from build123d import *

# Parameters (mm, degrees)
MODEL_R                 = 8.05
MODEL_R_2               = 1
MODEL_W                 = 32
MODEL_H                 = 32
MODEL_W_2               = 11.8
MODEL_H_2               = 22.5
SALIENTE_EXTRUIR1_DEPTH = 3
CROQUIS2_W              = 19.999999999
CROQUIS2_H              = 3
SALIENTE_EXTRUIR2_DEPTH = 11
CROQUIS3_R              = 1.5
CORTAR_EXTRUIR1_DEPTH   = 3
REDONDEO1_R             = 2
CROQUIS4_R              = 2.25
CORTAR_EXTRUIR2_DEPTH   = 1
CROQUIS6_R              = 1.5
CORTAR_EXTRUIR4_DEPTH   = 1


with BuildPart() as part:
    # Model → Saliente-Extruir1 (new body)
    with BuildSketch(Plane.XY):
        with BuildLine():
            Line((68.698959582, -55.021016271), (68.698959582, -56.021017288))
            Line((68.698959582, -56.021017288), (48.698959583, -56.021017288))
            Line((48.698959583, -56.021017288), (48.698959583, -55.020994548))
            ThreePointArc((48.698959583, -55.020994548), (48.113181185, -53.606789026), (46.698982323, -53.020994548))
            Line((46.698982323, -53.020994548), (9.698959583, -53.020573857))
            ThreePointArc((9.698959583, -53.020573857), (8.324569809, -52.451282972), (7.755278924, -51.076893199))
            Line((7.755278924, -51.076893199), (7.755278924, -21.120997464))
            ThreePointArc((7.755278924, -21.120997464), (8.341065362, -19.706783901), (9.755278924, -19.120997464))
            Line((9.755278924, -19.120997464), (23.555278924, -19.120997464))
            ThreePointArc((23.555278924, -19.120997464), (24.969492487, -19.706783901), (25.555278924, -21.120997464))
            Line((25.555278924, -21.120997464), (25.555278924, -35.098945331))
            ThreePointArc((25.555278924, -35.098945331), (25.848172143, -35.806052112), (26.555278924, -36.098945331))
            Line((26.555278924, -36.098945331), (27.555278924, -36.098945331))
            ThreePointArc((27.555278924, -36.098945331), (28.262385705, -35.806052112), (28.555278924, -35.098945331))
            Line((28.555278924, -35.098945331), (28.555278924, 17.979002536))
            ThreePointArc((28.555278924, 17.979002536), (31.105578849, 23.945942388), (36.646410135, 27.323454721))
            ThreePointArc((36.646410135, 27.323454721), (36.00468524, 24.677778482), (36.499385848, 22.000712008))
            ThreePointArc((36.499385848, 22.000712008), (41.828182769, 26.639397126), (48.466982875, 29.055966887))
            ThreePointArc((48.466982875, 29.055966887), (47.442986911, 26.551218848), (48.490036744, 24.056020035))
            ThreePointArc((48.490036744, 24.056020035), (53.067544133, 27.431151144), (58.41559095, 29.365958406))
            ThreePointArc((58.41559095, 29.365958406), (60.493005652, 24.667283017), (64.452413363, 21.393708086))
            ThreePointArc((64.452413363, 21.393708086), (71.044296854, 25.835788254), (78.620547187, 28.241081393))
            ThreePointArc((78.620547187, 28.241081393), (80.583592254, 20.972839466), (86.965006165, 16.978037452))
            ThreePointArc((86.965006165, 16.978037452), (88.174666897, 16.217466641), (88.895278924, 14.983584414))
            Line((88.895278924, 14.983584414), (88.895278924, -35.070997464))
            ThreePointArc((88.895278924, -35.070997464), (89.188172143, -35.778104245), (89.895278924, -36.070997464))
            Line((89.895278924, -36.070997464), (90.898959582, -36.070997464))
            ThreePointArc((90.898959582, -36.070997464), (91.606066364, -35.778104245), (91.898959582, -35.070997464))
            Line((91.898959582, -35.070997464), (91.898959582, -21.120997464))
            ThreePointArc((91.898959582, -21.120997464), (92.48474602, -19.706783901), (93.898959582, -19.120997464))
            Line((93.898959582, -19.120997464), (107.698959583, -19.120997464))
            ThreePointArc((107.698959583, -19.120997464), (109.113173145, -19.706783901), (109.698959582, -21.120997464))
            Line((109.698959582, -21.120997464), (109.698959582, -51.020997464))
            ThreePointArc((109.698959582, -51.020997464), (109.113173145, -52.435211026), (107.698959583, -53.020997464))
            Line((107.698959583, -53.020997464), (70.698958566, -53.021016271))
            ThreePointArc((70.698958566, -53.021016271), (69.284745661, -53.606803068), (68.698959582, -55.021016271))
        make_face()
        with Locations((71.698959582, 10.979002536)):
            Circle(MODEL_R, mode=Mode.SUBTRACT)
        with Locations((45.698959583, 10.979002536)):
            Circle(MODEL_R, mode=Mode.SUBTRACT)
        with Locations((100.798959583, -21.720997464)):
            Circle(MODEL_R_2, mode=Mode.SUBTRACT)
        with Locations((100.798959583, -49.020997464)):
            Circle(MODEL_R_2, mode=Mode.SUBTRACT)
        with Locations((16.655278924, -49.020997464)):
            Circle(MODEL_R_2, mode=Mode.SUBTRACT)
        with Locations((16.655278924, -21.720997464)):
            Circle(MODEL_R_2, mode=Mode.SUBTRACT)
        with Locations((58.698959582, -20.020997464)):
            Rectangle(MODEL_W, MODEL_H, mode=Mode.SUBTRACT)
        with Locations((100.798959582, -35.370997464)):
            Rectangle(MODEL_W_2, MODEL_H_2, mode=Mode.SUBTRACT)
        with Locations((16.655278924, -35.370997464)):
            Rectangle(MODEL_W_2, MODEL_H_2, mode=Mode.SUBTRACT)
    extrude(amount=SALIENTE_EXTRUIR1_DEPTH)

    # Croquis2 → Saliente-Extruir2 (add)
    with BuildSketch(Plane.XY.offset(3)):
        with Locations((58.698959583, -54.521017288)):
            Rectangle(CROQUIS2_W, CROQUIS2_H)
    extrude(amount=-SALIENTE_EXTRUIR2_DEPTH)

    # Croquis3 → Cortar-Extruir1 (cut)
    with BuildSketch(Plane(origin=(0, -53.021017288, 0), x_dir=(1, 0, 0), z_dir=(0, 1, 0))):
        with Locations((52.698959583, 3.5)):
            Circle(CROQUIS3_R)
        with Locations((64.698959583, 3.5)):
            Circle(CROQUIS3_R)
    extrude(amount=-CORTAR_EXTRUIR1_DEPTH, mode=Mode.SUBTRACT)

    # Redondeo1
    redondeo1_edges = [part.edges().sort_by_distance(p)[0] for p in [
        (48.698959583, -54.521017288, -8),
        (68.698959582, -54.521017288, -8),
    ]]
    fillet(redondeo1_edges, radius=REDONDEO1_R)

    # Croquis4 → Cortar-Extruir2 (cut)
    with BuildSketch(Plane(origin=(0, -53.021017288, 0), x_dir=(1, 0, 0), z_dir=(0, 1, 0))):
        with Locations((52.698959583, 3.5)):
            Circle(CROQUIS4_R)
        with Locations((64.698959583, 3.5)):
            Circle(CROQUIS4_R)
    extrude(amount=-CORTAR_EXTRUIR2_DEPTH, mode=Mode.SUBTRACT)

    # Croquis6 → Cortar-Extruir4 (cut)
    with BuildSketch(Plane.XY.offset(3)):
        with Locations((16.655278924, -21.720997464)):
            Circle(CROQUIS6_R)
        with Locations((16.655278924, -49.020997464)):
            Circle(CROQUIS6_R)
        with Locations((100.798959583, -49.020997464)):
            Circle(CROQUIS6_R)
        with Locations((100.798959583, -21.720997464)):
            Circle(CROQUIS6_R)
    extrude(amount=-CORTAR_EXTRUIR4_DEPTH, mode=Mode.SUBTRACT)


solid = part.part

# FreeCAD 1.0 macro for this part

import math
import FreeCAD as App
import Part
import Sketcher

V = App.Vector


def edges_at(feature, points):
    """Names of the edges that pass closest to the given points."""
    edges = feature.Shape.Edges
    near = lambda p: min(range(len(edges)), key=lambda i: edges[i].distToShape(Part.Vertex(*p))[0])
    return sorted({f"Edge{near(p) + 1}" for p in points})

doc = App.newDocument("Part")
body = doc.addObject("PartDesign::Body", "Body")

# Sketch on XY plane
sketch1 = doc.addObject("Sketcher::SketchObject", "Sketch")
body.addObject(sketch1)
sketch1.AttachmentSupport = (doc.XY_Plane, [""])
sketch1.MapMode = "FlatFace"
sketch1.addGeometry(Part.LineSegment(V(68.69896, -56.021017, 0), V(68.69896, -55.021016, 0)), False)
sketch1.addGeometry(Part.ArcOfCircle(Part.Circle(V(70.69896, -55.021016, 0), V(0, 0, 1), 2), math.radians(90.000029), math.radians(180)), False)
sketch1.addGeometry(Part.LineSegment(V(70.698959, -53.021016, 0), V(107.69896, -53.020997, 0)), False)
sketch1.addGeometry(Part.ArcOfCircle(Part.Circle(V(107.69896, -51.020997, 0), V(0, 0, 1), 2), math.radians(-90), math.radians(0)), False)
sketch1.addGeometry(Part.LineSegment(V(109.69896, -51.020997, 0), V(109.69896, -21.120997, 0)), False)
sketch1.addGeometry(Part.ArcOfCircle(Part.Circle(V(107.69896, -21.120997, 0), V(0, 0, 1), 2), math.radians(0), math.radians(90)), False)
sketch1.addGeometry(Part.LineSegment(V(107.69896, -19.120997, 0), V(93.89896, -19.120997, 0)), False)
sketch1.addGeometry(Part.ArcOfCircle(Part.Circle(V(93.89896, -21.120997, 0), V(0, 0, 1), 2), math.radians(90), math.radians(180)), False)
sketch1.addGeometry(Part.LineSegment(V(91.89896, -21.120997, 0), V(91.89896, -35.070997, 0)), False)
sketch1.addGeometry(Part.ArcOfCircle(Part.Circle(V(90.89896, -35.070997, 0), V(0, 0, 1), 1), math.radians(-90), math.radians(0)), False)
sketch1.addGeometry(Part.LineSegment(V(90.89896, -36.070997, 0), V(89.895279, -36.070997, 0)), False)
sketch1.addGeometry(Part.ArcOfCircle(Part.Circle(V(89.895279, -35.070997, 0), V(0, 0, 1), 1), math.radians(-180), math.radians(-90)), False)
sketch1.addGeometry(Part.LineSegment(V(88.895279, -35.070997, 0), V(88.895279, 14.983584, 0)), False)
sketch1.addGeometry(Part.ArcOfCircle(Part.Circle(V(86.018945, 14.131115, 0), V(0, 0, 1), 3), math.radians(16.508438), math.radians(71.617836)), False)
sketch1.addGeometry(Part.ArcOfCircle(Part.Circle(V(88.865955, 27.108999, 0), V(0, 0, 1), 10.307764), math.radians(173.694595), math.radians(259.372729)), False)
sketch1.addGeometry(Part.ArcOfCircle(Part.Circle(V(83.198175, 0.687784, 0), V(0, 0, 1), 27.930966), math.radians(99.432804), math.radians(132.15559)), False)
sketch1.addGeometry(Part.ArcOfCircle(Part.Circle(V(69.406252, 31.416656, 0), V(0, 0, 1), 11.18034), math.radians(-169.430975), math.radians(-116.300872)), False)
sketch1.addGeometry(Part.ArcOfCircle(Part.Circle(V(62.408136, 9.971335, 0), V(0, 0, 1), 19.801309), math.radians(101.632314), math.radians(134.659156)), False)
sketch1.addGeometry(Part.ArcOfCircle(Part.Circle(V(50.978483, 26.56752, 0), V(0, 0, 1), 3.535534), math.radians(135.264179), math.radians(225.264179)), False)
sketch1.addGeometry(Part.ArcOfCircle(Part.Circle(V(51.655016, 9.970463, 0), V(0, 0, 1), 19.349935), math.radians(99.483105), math.radians(141.558127)), False)
sketch1.addGeometry(Part.ArcOfCircle(Part.Circle(V(42.521402, 24.497774, 0), V(0, 0, 1), 6.519202), math.radians(154.313956), math.radians(202.521611)), False)
sketch1.addGeometry(Part.ArcOfCircle(Part.Circle(V(39.152816, 16.978037, 0), V(0, 0, 1), 10.644704), math.radians(103.618763), math.radians(174.604272)), False)
sketch1.addGeometry(Part.LineSegment(V(28.555279, 17.979003, 0), V(28.555279, -35.098945, 0)), False)
sketch1.addGeometry(Part.ArcOfCircle(Part.Circle(V(27.555279, -35.098945, 0), V(0, 0, 1), 1), math.radians(-90), math.radians(0)), False)
sketch1.addGeometry(Part.LineSegment(V(27.555279, -36.098945, 0), V(26.555279, -36.098945, 0)), False)
sketch1.addGeometry(Part.ArcOfCircle(Part.Circle(V(26.555279, -35.098945, 0), V(0, 0, 1), 1), math.radians(-180), math.radians(-90)), False)
sketch1.addGeometry(Part.LineSegment(V(25.555279, -35.098945, 0), V(25.555279, -21.120997, 0)), False)
sketch1.addGeometry(Part.ArcOfCircle(Part.Circle(V(23.555279, -21.120997, 0), V(0, 0, 1), 2), math.radians(0), math.radians(90)), False)
sketch1.addGeometry(Part.LineSegment(V(23.555279, -19.120997, 0), V(9.755279, -19.120997, 0)), False)
sketch1.addGeometry(Part.ArcOfCircle(Part.Circle(V(9.755279, -21.120997, 0), V(0, 0, 1), 2), math.radians(90), math.radians(180)), False)
sketch1.addGeometry(Part.LineSegment(V(7.755279, -21.120997, 0), V(7.755279, -51.076893, 0)), False)
sketch1.addGeometry(Part.ArcOfCircle(Part.Circle(V(9.69896, -51.076893, 0), V(0, 0, 1), 1.943681), math.radians(-180), math.radians(-90)), False)
sketch1.addGeometry(Part.LineSegment(V(9.69896, -53.020574, 0), V(46.698982, -53.020995, 0)), False)
sketch1.addGeometry(Part.ArcOfCircle(Part.Circle(V(46.69896, -55.020995, 0), V(0, 0, 1), 2), math.radians(0), math.radians(89.999349)), False)
sketch1.addGeometry(Part.LineSegment(V(48.69896, -55.020995, 0), V(48.69896, -56.021017, 0)), False)
sketch1.addGeometry(Part.LineSegment(V(48.69896, -56.021017, 0), V(68.69896, -56.021017, 0)), False)
sketch1.addGeometry(Part.Circle(V(100.79896, -49.020997, 0), V(0, 0, 1), 1), False)
sketch1.addGeometry(Part.LineSegment(V(94.89896, -46.620997, 0), V(94.89896, -24.120997, 0)), False)
sketch1.addGeometry(Part.LineSegment(V(94.89896, -24.120997, 0), V(106.69896, -24.120997, 0)), False)
sketch1.addGeometry(Part.LineSegment(V(106.69896, -24.120997, 0), V(106.69896, -46.620997, 0)), False)
sketch1.addGeometry(Part.LineSegment(V(106.69896, -46.620997, 0), V(94.89896, -46.620997, 0)), False)
sketch1.addGeometry(Part.Circle(V(100.79896, -21.720997, 0), V(0, 0, 1), 1), False)
sketch1.addGeometry(Part.Circle(V(16.655279, -49.020997, 0), V(0, 0, 1), 1), False)
sketch1.addGeometry(Part.LineSegment(V(10.755279, -46.620997, 0), V(10.755279, -24.120997, 0)), False)
sketch1.addGeometry(Part.LineSegment(V(10.755279, -24.120997, 0), V(22.555279, -24.120997, 0)), False)
sketch1.addGeometry(Part.LineSegment(V(22.555279, -24.120997, 0), V(22.555279, -46.620997, 0)), False)
sketch1.addGeometry(Part.LineSegment(V(22.555279, -46.620997, 0), V(10.755279, -46.620997, 0)), False)
sketch1.addGeometry(Part.LineSegment(V(42.69896, -36.020997, 0), V(42.69896, -4.020997, 0)), False)
sketch1.addGeometry(Part.LineSegment(V(42.69896, -4.020997, 0), V(74.69896, -4.020997, 0)), False)
sketch1.addGeometry(Part.LineSegment(V(74.69896, -4.020997, 0), V(74.69896, -36.020997, 0)), False)
sketch1.addGeometry(Part.LineSegment(V(74.69896, -36.020997, 0), V(42.69896, -36.020997, 0)), False)
sketch1.addGeometry(Part.Circle(V(16.655279, -21.720997, 0), V(0, 0, 1), 1), False)
sketch1.addGeometry(Part.Circle(V(71.69896, 10.979003, 0), V(0, 0, 1), 8.05), False)
sketch1.addGeometry(Part.Circle(V(45.69896, 10.979003, 0), V(0, 0, 1), 8.05), False)
sketch1.addConstraint(Sketcher.Constraint("Coincident", 0, 2, 1, 2))
sketch1.addConstraint(Sketcher.Constraint("Coincident", 1, 1, 2, 1))
sketch1.addConstraint(Sketcher.Constraint("Coincident", 2, 2, 3, 1))
sketch1.addConstraint(Sketcher.Constraint("Coincident", 3, 2, 4, 1))
sketch1.addConstraint(Sketcher.Constraint("Coincident", 4, 2, 5, 1))
sketch1.addConstraint(Sketcher.Constraint("Coincident", 5, 2, 6, 1))
sketch1.addConstraint(Sketcher.Constraint("Coincident", 6, 2, 7, 1))
sketch1.addConstraint(Sketcher.Constraint("Coincident", 7, 2, 8, 1))
sketch1.addConstraint(Sketcher.Constraint("Coincident", 8, 2, 9, 2))
sketch1.addConstraint(Sketcher.Constraint("Coincident", 9, 1, 10, 1))
sketch1.addConstraint(Sketcher.Constraint("Coincident", 10, 2, 11, 2))
sketch1.addConstraint(Sketcher.Constraint("Coincident", 11, 1, 12, 1))
sketch1.addConstraint(Sketcher.Constraint("Coincident", 12, 2, 13, 1))
sketch1.addConstraint(Sketcher.Constraint("Coincident", 13, 2, 14, 2))
sketch1.addConstraint(Sketcher.Constraint("Coincident", 14, 1, 15, 1))
sketch1.addConstraint(Sketcher.Constraint("Coincident", 15, 2, 16, 2))
sketch1.addConstraint(Sketcher.Constraint("Coincident", 16, 1, 17, 1))
sketch1.addConstraint(Sketcher.Constraint("Coincident", 17, 2, 18, 2))
sketch1.addConstraint(Sketcher.Constraint("Coincident", 18, 1, 19, 1))
sketch1.addConstraint(Sketcher.Constraint("Coincident", 19, 2, 20, 2))
sketch1.addConstraint(Sketcher.Constraint("Coincident", 20, 1, 21, 1))
sketch1.addConstraint(Sketcher.Constraint("Coincident", 21, 2, 22, 1))
sketch1.addConstraint(Sketcher.Constraint("Coincident", 22, 2, 23, 2))
sketch1.addConstraint(Sketcher.Constraint("Coincident", 23, 1, 24, 1))
sketch1.addConstraint(Sketcher.Constraint("Coincident", 24, 2, 25, 2))
sketch1.addConstraint(Sketcher.Constraint("Coincident", 25, 1, 26, 1))
sketch1.addConstraint(Sketcher.Constraint("Coincident", 26, 2, 27, 1))
sketch1.addConstraint(Sketcher.Constraint("Coincident", 27, 2, 28, 1))
sketch1.addConstraint(Sketcher.Constraint("Coincident", 28, 2, 29, 1))
sketch1.addConstraint(Sketcher.Constraint("Coincident", 29, 2, 30, 1))
sketch1.addConstraint(Sketcher.Constraint("Coincident", 30, 2, 31, 1))
sketch1.addConstraint(Sketcher.Constraint("Coincident", 31, 2, 32, 1))
sketch1.addConstraint(Sketcher.Constraint("Coincident", 32, 2, 33, 2))
sketch1.addConstraint(Sketcher.Constraint("Coincident", 33, 1, 34, 1))
sketch1.addConstraint(Sketcher.Constraint("Coincident", 34, 2, 35, 1))
sketch1.addConstraint(Sketcher.Constraint("Coincident", 35, 2, 0, 1))
sketch1.addConstraint(Sketcher.Constraint("Coincident", 37, 2, 38, 1))
sketch1.addConstraint(Sketcher.Constraint("Coincident", 38, 2, 39, 1))
sketch1.addConstraint(Sketcher.Constraint("Coincident", 39, 2, 40, 1))
sketch1.addConstraint(Sketcher.Constraint("Coincident", 40, 2, 37, 1))
sketch1.addConstraint(Sketcher.Constraint("Coincident", 43, 2, 44, 1))
sketch1.addConstraint(Sketcher.Constraint("Coincident", 44, 2, 45, 1))
sketch1.addConstraint(Sketcher.Constraint("Coincident", 45, 2, 46, 1))
sketch1.addConstraint(Sketcher.Constraint("Coincident", 46, 2, 43, 1))
sketch1.addConstraint(Sketcher.Constraint("Coincident", 47, 2, 48, 1))
sketch1.addConstraint(Sketcher.Constraint("Coincident", 48, 2, 49, 1))
sketch1.addConstraint(Sketcher.Constraint("Coincident", 49, 2, 50, 1))
sketch1.addConstraint(Sketcher.Constraint("Coincident", 50, 2, 47, 1))
sketch1.addConstraint(Sketcher.Constraint("Vertical", 0))
sketch1.addConstraint(Sketcher.Constraint("Vertical", 4))
sketch1.addConstraint(Sketcher.Constraint("Horizontal", 6))
sketch1.addConstraint(Sketcher.Constraint("Vertical", 8))
sketch1.addConstraint(Sketcher.Constraint("Horizontal", 10))
sketch1.addConstraint(Sketcher.Constraint("Vertical", 12))
sketch1.addConstraint(Sketcher.Constraint("Vertical", 22))
sketch1.addConstraint(Sketcher.Constraint("Horizontal", 24))
sketch1.addConstraint(Sketcher.Constraint("Vertical", 26))
sketch1.addConstraint(Sketcher.Constraint("Horizontal", 28))
sketch1.addConstraint(Sketcher.Constraint("Vertical", 30))
sketch1.addConstraint(Sketcher.Constraint("Vertical", 34))
sketch1.addConstraint(Sketcher.Constraint("Horizontal", 35))
sketch1.addConstraint(Sketcher.Constraint("Vertical", 37))
sketch1.addConstraint(Sketcher.Constraint("Horizontal", 38))
sketch1.addConstraint(Sketcher.Constraint("Vertical", 39))
sketch1.addConstraint(Sketcher.Constraint("Horizontal", 40))
sketch1.addConstraint(Sketcher.Constraint("Vertical", 43))
sketch1.addConstraint(Sketcher.Constraint("Horizontal", 44))
sketch1.addConstraint(Sketcher.Constraint("Vertical", 45))
sketch1.addConstraint(Sketcher.Constraint("Horizontal", 46))
sketch1.addConstraint(Sketcher.Constraint("Vertical", 47))
sketch1.addConstraint(Sketcher.Constraint("Horizontal", 48))
sketch1.addConstraint(Sketcher.Constraint("Vertical", 49))
sketch1.addConstraint(Sketcher.Constraint("Horizontal", 50))
sketch1.addConstraint(Sketcher.Constraint("Diameter", 36, 2.0))
sketch1.addConstraint(Sketcher.Constraint("Diameter", 41, 2.0))
sketch1.addConstraint(Sketcher.Constraint("Diameter", 42, 2.0))
sketch1.addConstraint(Sketcher.Constraint("Diameter", 51, 2.0))
sketch1.addConstraint(Sketcher.Constraint("Radius", 1, 2.0))
sketch1.addConstraint(Sketcher.Constraint("Radius", 3, 2.0))
sketch1.addConstraint(Sketcher.Constraint("Radius", 5, 2.0))
sketch1.addConstraint(Sketcher.Constraint("Radius", 7, 2.0))
sketch1.addConstraint(Sketcher.Constraint("Radius", 9, 1.0))
sketch1.addConstraint(Sketcher.Constraint("Radius", 11, 1.0))
sketch1.addConstraint(Sketcher.Constraint("Radius", 13, 3.0))
sketch1.addConstraint(Sketcher.Constraint("Radius", 23, 1.0))
sketch1.addConstraint(Sketcher.Constraint("Radius", 25, 1.0))
sketch1.addConstraint(Sketcher.Constraint("Radius", 27, 2.0))
sketch1.addConstraint(Sketcher.Constraint("Radius", 29, 2.0))
sketch1.addConstraint(Sketcher.Constraint("Radius", 33, 2.0))
sketch1.addConstraint(Sketcher.Constraint("Diameter", 52, 16.1))
sketch1.addConstraint(Sketcher.Constraint("Diameter", 53, 16.1))
sketch1.addConstraint(Sketcher.Constraint("DistanceX", 24, 2, 24, 1, 1.0))
sketch1.addConstraint(Sketcher.Constraint("DistanceX", 35, 1, 35, 2, 20.0))
sketch1.addConstraint(Sketcher.Constraint("DistanceX", 48, 1, 48, 2, 32.0))
sketch1.addConstraint(Sketcher.Constraint("DistanceY", 0, 1, 0, 2, 1.000001))
sketch1.addConstraint(Sketcher.Constraint("DistanceY", 47, 1, 47, 2, 32.0))
sketch1.addConstraint(Sketcher.Constraint("Distance", 2, 37.000001))
sketch1.addConstraint(Sketcher.Constraint("DistanceX", 6, 2, 6, 1, 13.8))
sketch1.addConstraint(Sketcher.Constraint("DistanceX", 28, 2, 28, 1, 13.8))
sketch1.addConstraint(Sketcher.Constraint("DistanceX", 38, 1, 38, 2, 11.8))
sketch1.addConstraint(Sketcher.Constraint("DistanceX", 44, 1, 44, 2, 11.8))
sketch1.addConstraint(Sketcher.Constraint("DistanceY", 4, 1, 4, 2, 29.9))
sketch1.addConstraint(Sketcher.Constraint("DistanceY", 37, 1, 37, 2, 22.5))
sketch1.addConstraint(Sketcher.Constraint("DistanceY", 43, 1, 43, 2, 22.5))
sketch1.addConstraint(Sketcher.Constraint("DistanceY", 8, 2, 8, 1, 13.95))
sketch1.addConstraint(Sketcher.Constraint("Radius", 16, 11.18034))
sketch1.addConstraint(Sketcher.Constraint("Radius", 17, 19.801309))
sketch1.addConstraint(Sketcher.Constraint("Radius", 31, 1.943681))
sketch1.addConstraint(Sketcher.Constraint("DistanceY", -1, 1, 14, 3, 27.108999))
sketch1.addConstraint(Sketcher.Constraint("Radius", 14, 10.307764))
sketch1.addConstraint(Sketcher.Constraint("Radius", 15, 27.930966))
sketch1.addConstraint(Sketcher.Constraint("Radius", 18, 3.535534))
sketch1.addConstraint(Sketcher.Constraint("Radius", 19, 19.349935))
sketch1.addConstraint(Sketcher.Constraint("Radius", 20, 6.519202))
sketch1.addConstraint(Sketcher.Constraint("Radius", 21, 10.644704))
sketch1.addConstraint(Sketcher.Constraint("DistanceX", 10, 2, 10, 1, 1.003681))
sketch1.addConstraint(Sketcher.Constraint("DistanceY", 12, 1, 12, 2, 50.054582))
sketch1.addConstraint(Sketcher.Constraint("DistanceY", 22, 2, 22, 1, 53.077948))
sketch1.addConstraint(Sketcher.Constraint("DistanceY", 26, 1, 26, 2, 13.977948))
sketch1.addConstraint(Sketcher.Constraint("DistanceY", 30, 2, 30, 1, 29.955896))
sketch1.addConstraint(Sketcher.Constraint("DistanceY", 34, 2, 34, 1, 1.000023))
sketch1.addConstraint(Sketcher.Constraint("DistanceX", -1, 1, 1, 3, 70.69896))
sketch1.addConstraint(Sketcher.Constraint("DistanceX", -1, 1, 3, 3, 107.69896))
sketch1.addConstraint(Sketcher.Constraint("DistanceX", -1, 1, 7, 3, 93.89896))
sketch1.addConstraint(Sketcher.Constraint("DistanceX", -1, 1, 11, 3, 89.895279))
sketch1.addConstraint(Sketcher.Constraint("DistanceY", -1, 1, 18, 3, 26.56752))
sketch1.addConstraint(Sketcher.Constraint("DistanceX", -1, 1, 23, 3, 27.555279))
sketch1.addConstraint(Sketcher.Constraint("DistanceX", -1, 1, 25, 3, 26.555279))
sketch1.addConstraint(Sketcher.Constraint("DistanceX", -1, 1, 29, 3, 9.755279))
sketch1.addConstraint(Sketcher.Constraint("DistanceX", -1, 1, 36, 3, 100.79896))
sketch1.addConstraint(Sketcher.Constraint("DistanceX", -1, 1, 41, 3, 100.79896))
sketch1.addConstraint(Sketcher.Constraint("DistanceX", -1, 1, 42, 3, 16.655279))
sketch1.addConstraint(Sketcher.Constraint("DistanceX", -1, 1, 51, 3, 16.655279))
sketch1.addConstraint(Sketcher.Constraint("DistanceX", -1, 1, 52, 3, 71.69896))
sketch1.addConstraint(Sketcher.Constraint("DistanceX", -1, 1, 53, 3, 45.69896))
sketch1.addConstraint(Sketcher.Constraint("DistanceX", -1, 1, 1, 1, 70.698959))
sketch1.addConstraint(Sketcher.Constraint("DistanceX", -1, 1, 5, 2, 107.69896))
sketch1.addConstraint(Sketcher.Constraint("DistanceX", -1, 1, 9, 1, 90.89896))
sketch1.addConstraint(Sketcher.Constraint("DistanceY", -1, 1, 14, 1, 28.241081))
sketch1.addConstraint(Sketcher.Constraint("DistanceY", -1, 1, 15, 2, 21.393708))
sketch1.addConstraint(Sketcher.Constraint("DistanceX", -1, 1, 16, 1, 58.415591))
sketch1.addConstraint(Sketcher.Constraint("DistanceY", -1, 1, 16, 1, 29.365958))
sketch1.addConstraint(Sketcher.Constraint("DistanceY", -1, 1, 17, 2, 24.05602))
sketch1.addConstraint(Sketcher.Constraint("DistanceX", -1, 1, 20, 1, 36.64641))
sketch1.addConstraint(Sketcher.Constraint("DistanceX", -1, 1, 23, 1, 27.555279))
sketch1.addConstraint(Sketcher.Constraint("DistanceX", -1, 1, 27, 2, 23.555279))
sketch1.addConstraint(Sketcher.Constraint("DistanceX", -1, 1, 31, 2, 9.69896))
sketch1.addConstraint(Sketcher.Constraint("DistanceX", -1, 1, 37, 2, 94.89896))
sketch1.addConstraint(Sketcher.Constraint("DistanceX", -1, 1, 43, 2, 10.755279))
sketch1.addConstraint(Sketcher.Constraint("DistanceX", -1, 1, 47, 2, 42.69896))
sketch1.addConstraint(Sketcher.Constraint("Distance", 32, 37.000023))
sketch1.addConstraint(Sketcher.Constraint("DistanceY", 1, 3, -1, 1, 55.021016))
sketch1.addConstraint(Sketcher.Constraint("DistanceY", 3, 3, -1, 1, 51.020997))
sketch1.addConstraint(Sketcher.Constraint("DistanceY", 5, 3, -1, 1, 21.120997))
sketch1.addConstraint(Sketcher.Constraint("DistanceY", 9, 3, -1, 1, 35.070997))
sketch1.addConstraint(Sketcher.Constraint("DistanceX", -1, 1, 13, 3, 86.018945))
sketch1.addConstraint(Sketcher.Constraint("DistanceY", -1, 1, 13, 3, 14.131115))
sketch1.addConstraint(Sketcher.Constraint("DistanceX", -1, 1, 14, 3, 88.865955))
sketch1.addConstraint(Sketcher.Constraint("DistanceX", -1, 1, 15, 3, 83.198175))
sketch1.addConstraint(Sketcher.Constraint("DistanceX", -1, 1, 17, 3, 62.408136))
sketch1.addConstraint(Sketcher.Constraint("DistanceX", -1, 1, 19, 3, 51.655016))
sketch1.addConstraint(Sketcher.Constraint("DistanceY", -1, 1, 19, 3, 9.970463))
sketch1.addConstraint(Sketcher.Constraint("DistanceX", -1, 1, 20, 3, 42.521402))
sketch1.addConstraint(Sketcher.Constraint("DistanceY", -1, 1, 20, 3, 24.497774))
sketch1.addConstraint(Sketcher.Constraint("DistanceX", -1, 1, 21, 3, 39.152816))
sketch1.addConstraint(Sketcher.Constraint("DistanceY", 23, 3, -1, 1, 35.098945))
sketch1.addConstraint(Sketcher.Constraint("DistanceY", 27, 3, -1, 1, 21.120997))
sketch1.addConstraint(Sketcher.Constraint("DistanceY", 31, 3, -1, 1, 51.076893))
sketch1.addConstraint(Sketcher.Constraint("DistanceY", 33, 3, -1, 1, 55.020995))
sketch1.addConstraint(Sketcher.Constraint("DistanceY", 36, 3, -1, 1, 49.020997))
sketch1.addConstraint(Sketcher.Constraint("DistanceY", 41, 3, -1, 1, 21.720997))
sketch1.addConstraint(Sketcher.Constraint("DistanceY", 42, 3, -1, 1, 49.020997))
sketch1.addConstraint(Sketcher.Constraint("DistanceY", 51, 3, -1, 1, 21.720997))
sketch1.addConstraint(Sketcher.Constraint("DistanceY", -1, 1, 52, 3, 10.979003))
sketch1.addConstraint(Sketcher.Constraint("DistanceY", -1, 1, 53, 3, 10.979003))
sketch1.addConstraint(Sketcher.Constraint("DistanceY", 0, 2, -1, 1, 55.021016))
sketch1.addConstraint(Sketcher.Constraint("DistanceY", 3, 2, -1, 1, 51.020997))
sketch1.addConstraint(Sketcher.Constraint("DistanceY", 7, 2, -1, 1, 21.120997))
sketch1.addConstraint(Sketcher.Constraint("DistanceY", 25, 1, -1, 1, 35.098945))
sketch1.addConstraint(Sketcher.Constraint("DistanceY", 29, 2, -1, 1, 21.120997))
sketch1.addConstraint(Sketcher.Constraint("DistanceY", 37, 2, -1, 1, 24.120997))
sketch1.addConstraint(Sketcher.Constraint("DistanceY", 43, 2, -1, 1, 24.120997))
sketch1.addConstraint(Sketcher.Constraint("DistanceY", 47, 2, -1, 1, 4.020997))
pad1 = doc.addObject("PartDesign::Pad", "Pad")
body.addObject(pad1)
pad1.Profile = sketch1
pad1.Length = 3

# Sketch on XY plane
sketch2 = doc.addObject("Sketcher::SketchObject", "Sketch001")
body.addObject(sketch2)
sketch2.AttachmentSupport = (doc.XY_Plane, [""])
sketch2.MapMode = "FlatFace"
sketch2.AttachmentOffset = App.Placement(V(0, 0, 3), App.Rotation())
sketch2.addGeometry(Part.LineSegment(V(48.7, -53, 0), V(48.7, -56, 0)), False)
sketch2.addGeometry(Part.LineSegment(V(48.7, -56, 0), V(68.7, -56, 0)), False)
sketch2.addGeometry(Part.LineSegment(V(68.7, -56, 0), V(68.7, -53, 0)), False)
sketch2.addGeometry(Part.LineSegment(V(68.7, -53, 0), V(48.7, -53, 0)), False)
sketch2.addConstraint(Sketcher.Constraint("Coincident", 0, 2, 1, 1))
sketch2.addConstraint(Sketcher.Constraint("Coincident", 1, 2, 2, 1))
sketch2.addConstraint(Sketcher.Constraint("Coincident", 2, 2, 3, 1))
sketch2.addConstraint(Sketcher.Constraint("Coincident", 3, 2, 0, 1))
sketch2.addConstraint(Sketcher.Constraint("Vertical", 0))
sketch2.addConstraint(Sketcher.Constraint("Horizontal", 1))
sketch2.addConstraint(Sketcher.Constraint("Vertical", 2))
sketch2.addConstraint(Sketcher.Constraint("Horizontal", 3))
sketch2.addConstraint(Sketcher.Constraint("DistanceX", 1, 1, 1, 2, 20.0))
sketch2.addConstraint(Sketcher.Constraint("DistanceY", 0, 2, 0, 1, 3.0))
sketch2.addConstraint(Sketcher.Constraint("DistanceX", -1, 1, 0, 2, 48.69896))
sketch2.addConstraint(Sketcher.Constraint("DistanceY", 0, 2, -1, 1, 56.021017))
pad2 = doc.addObject("PartDesign::Pad", "Pad001")
body.addObject(pad2)
pad2.Profile = sketch2
pad2.Length = 11
pad2.Reversed = True

# Sketch on XZ plane
sketch3 = doc.addObject("Sketcher::SketchObject", "Sketch002")
body.addObject(sketch3)
sketch3.AttachmentSupport = (doc.XZ_Plane, [""])
sketch3.MapMode = "FlatFace"
sketch3.AttachmentOffset = App.Placement(V(0, 0, 53.021017), App.Rotation())
sketch3.addGeometry(Part.Circle(V(52.7, -3.5, 0), V(0, 0, 1), 1.5), False)
sketch3.addGeometry(Part.Circle(V(64.7, -3.5, 0), V(0, 0, 1), 1.5), False)
sketch3.addConstraint(Sketcher.Constraint("Equal", 0, 1))
sketch3.addConstraint(Sketcher.Constraint("Horizontal", 0, 3, 1, 3))
sketch3.addConstraint(Sketcher.Constraint("Diameter", 0, 3.0))
sketch3.addConstraint(Sketcher.Constraint("DistanceX", 0, 3, 1, 3, 12.0))
sketch3.addConstraint(Sketcher.Constraint("DistanceY", 0, 3, -1, 1, 3.5))
sketch3.addConstraint(Sketcher.Constraint("DistanceX", -1, 1, 0, 3, 52.69896))
pocket1 = doc.addObject("PartDesign::Pocket", "Pocket")
body.addObject(pocket1)
pocket1.Profile = sketch3
pocket1.Length = 3
pocket1.Reversed = True
doc.recompute()

fillet = doc.addObject("PartDesign::Fillet", "Fillet")
body.addObject(fillet)
fillet.Base = (pocket1, edges_at(pocket1, [(48.699, -54.521, -8), (68.699, -54.521, -8)]))
fillet.Radius = 2

# Sketch on XZ plane
sketch4 = doc.addObject("Sketcher::SketchObject", "Sketch003")
body.addObject(sketch4)
sketch4.AttachmentSupport = (doc.XZ_Plane, [""])
sketch4.MapMode = "FlatFace"
sketch4.AttachmentOffset = App.Placement(V(0, 0, 53.021017), App.Rotation())
sketch4.addGeometry(Part.Circle(V(52.7, -3.5, 0), V(0, 0, 1), 2.2), False)
sketch4.addGeometry(Part.Circle(V(64.7, -3.5, 0), V(0, 0, 1), 2.2), False)
sketch4.addConstraint(Sketcher.Constraint("Equal", 0, 1))
sketch4.addConstraint(Sketcher.Constraint("Horizontal", 0, 3, 1, 3))
sketch4.addConstraint(Sketcher.Constraint("Diameter", 0, 4.5))
sketch4.addConstraint(Sketcher.Constraint("DistanceX", 0, 3, 1, 3, 12.0))
sketch4.addConstraint(Sketcher.Constraint("DistanceY", 0, 3, -1, 1, 3.5))
sketch4.addConstraint(Sketcher.Constraint("DistanceX", -1, 1, 0, 3, 52.69896))
pocket2 = doc.addObject("PartDesign::Pocket", "Pocket001")
body.addObject(pocket2)
pocket2.Profile = sketch4
pocket2.Length = 1
pocket2.Reversed = True

# Sketch on XY plane
sketch5 = doc.addObject("Sketcher::SketchObject", "Sketch004")
body.addObject(sketch5)
sketch5.AttachmentSupport = (doc.XY_Plane, [""])
sketch5.MapMode = "FlatFace"
sketch5.AttachmentOffset = App.Placement(V(0, 0, 3), App.Rotation())
sketch5.addGeometry(Part.Circle(V(16.7, -21.7, 0), V(0, 0, 1), 1.5), False)
sketch5.addGeometry(Part.Circle(V(16.7, -49, 0), V(0, 0, 1), 1.5), False)
sketch5.addGeometry(Part.Circle(V(100.8, -49, 0), V(0, 0, 1), 1.5), False)
sketch5.addGeometry(Part.Circle(V(100.8, -21.7, 0), V(0, 0, 1), 1.5), False)
sketch5.addConstraint(Sketcher.Constraint("Equal", 0, 1))
sketch5.addConstraint(Sketcher.Constraint("Equal", 1, 2))
sketch5.addConstraint(Sketcher.Constraint("Equal", 2, 3))
sketch5.addConstraint(Sketcher.Constraint("Horizontal", 1, 3, 2, 3))
sketch5.addConstraint(Sketcher.Constraint("Horizontal", 0, 3, 3, 3))
sketch5.addConstraint(Sketcher.Constraint("Vertical", 0, 3, 1, 3))
sketch5.addConstraint(Sketcher.Constraint("Vertical", 2, 3, 3, 3))
sketch5.addConstraint(Sketcher.Constraint("Diameter", 0, 3.0))
sketch5.addConstraint(Sketcher.Constraint("DistanceY", 1, 3, 0, 3, 27.3))
sketch5.addConstraint(Sketcher.Constraint("DistanceX", -1, 1, 0, 3, 16.655279))
sketch5.addConstraint(Sketcher.Constraint("DistanceX", -1, 1, 2, 3, 100.79896))
sketch5.addConstraint(Sketcher.Constraint("DistanceY", 0, 3, -1, 1, 21.720997))
pocket3 = doc.addObject("PartDesign::Pocket", "Pocket002")
body.addObject(pocket3)
pocket3.Profile = sketch5
pocket3.Length = 1

doc.recompute()
